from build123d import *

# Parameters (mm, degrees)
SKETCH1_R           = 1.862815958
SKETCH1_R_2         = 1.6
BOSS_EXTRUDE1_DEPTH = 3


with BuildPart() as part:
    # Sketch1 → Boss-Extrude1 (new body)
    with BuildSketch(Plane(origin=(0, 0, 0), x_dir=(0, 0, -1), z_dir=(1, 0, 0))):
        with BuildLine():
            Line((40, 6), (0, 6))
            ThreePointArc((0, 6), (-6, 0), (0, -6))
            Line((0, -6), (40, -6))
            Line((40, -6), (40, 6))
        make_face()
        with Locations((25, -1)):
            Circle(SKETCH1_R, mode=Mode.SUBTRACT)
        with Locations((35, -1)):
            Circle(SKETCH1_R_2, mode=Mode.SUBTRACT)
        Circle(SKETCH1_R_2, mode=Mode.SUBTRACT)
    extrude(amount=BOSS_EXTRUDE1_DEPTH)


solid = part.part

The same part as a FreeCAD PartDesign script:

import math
import FreeCAD as App
import Part
import Sketcher

V = App.Vector
Q = App.Units.Quantity

doc = App.newDocument("Part")
params = doc.addObject("Spreadsheet::Sheet", "Params")
for row, (alias, value) in enumerate([
    ("sketch1_radius", "6 mm"),
    ("sketch1_diameter", "3.2 mm"),
    ("sketch1_height", "40 mm"),
    ("pad1_length", "3 mm"),
], start=1):
    params.set(f"A{row}", alias)
    params.set(f"B{row}", "=" + value)
    params.setAlias(f"B{row}", alias)

body = doc.addObject("PartDesign::Body", "Body")

sketch1 = body.newObject("Sketcher::SketchObject", "Sketch")
sketch1.AttachmentSupport = (doc.getObject("YZ_Plane"), [""])
sketch1.MapMode = "FlatFace"
sketch1.addGeometry([
    Part.LineSegment(V(6, -40, 0), V(6, 0, 0)),
    Part.ArcOfCircle(Part.Circle(V(0, 0, 0), V(0, 0, 1), 6), math.radians(0), math.radians(180)),
    Part.LineSegment(V(-6, 0, 0), V(-6, -40, 0)),
    Part.LineSegment(V(-6, -40, 0), V(6, -40, 0)),
    Part.Circle(V(-1, -25, 0), V(0, 0, 1), 1.862816),
    Part.Circle(V(-1, -35, 0), V(0, 0, 1), 1.6),
    Part.Circle(V(0, 0, 0), V(0, 0, 1), 1.6),
], False)
sketch1.addConstraint([
    Sketcher.Constraint("Tangent", 0, 2, 1, 1),
    Sketcher.Constraint("Tangent", 1, 2, 2, 1),
    Sketcher.Constraint("Coincident", 2, 2, 3, 1),
    Sketcher.Constraint("Coincident", 3, 2, 0, 1),
    Sketcher.Constraint("Vertical", 0),
    Sketcher.Constraint("Vertical", 2),
    Sketcher.Constraint("Horizontal", 3),
    Sketcher.Constraint("Coincident", 1, 3, -1, 1),
    Sketcher.Constraint("Coincident", 6, 3, -1, 1),
    Sketcher.Constraint("Equal", 5, 6),
    Sketcher.Constraint("Vertical", 4, 3, 5, 3),
    Sketcher.Constraint("Radius", 1, Q("6 mm")),
    Sketcher.Constraint("Diameter", 5, Q("3.2 mm")),
    Sketcher.Constraint("DistanceY", 0, 1, 0, 2, Q("40 mm")),
    Sketcher.Constraint("DistanceX", 4, 3, -1, 1, Q("1 mm")),
    Sketcher.Constraint("DistanceY", 4, 3, -1, 1, Q("25 mm")),
    Sketcher.Constraint("DistanceY", 5, 3, -1, 1, Q("35 mm")),
    Sketcher.Constraint("Diameter", 4, Q("3.725632 mm")),
])
sketch1.setExpression("Constraints[11]", "Params.sketch1_radius")
sketch1.setExpression("Constraints[12]", "Params.sketch1_diameter")
sketch1.setExpression("Constraints[13]", "Params.sketch1_height")
pad1 = body.newObject("PartDesign::Pad", "Pad")
pad1.Profile = sketch1
pad1.setExpression("Length", "Params.pad1_length")

doc.recompute()
